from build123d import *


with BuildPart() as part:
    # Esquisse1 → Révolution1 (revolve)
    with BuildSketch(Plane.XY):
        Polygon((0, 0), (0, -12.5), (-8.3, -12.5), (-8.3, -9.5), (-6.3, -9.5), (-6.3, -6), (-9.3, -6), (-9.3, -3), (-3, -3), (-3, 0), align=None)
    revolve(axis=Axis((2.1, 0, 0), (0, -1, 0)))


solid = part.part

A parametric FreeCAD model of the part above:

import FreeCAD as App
import Part
import Sketcher
Q = App.Units.Quantity


def add_polygon(sketch, points):
    """Adds a closed chain of lines whose ends are joined by coincident constraints."""
    first, n = sketch.GeometryCount, len(points)
    for a, b in zip(points, points[1:] + points[:1]):
        sketch.addGeometry(Part.LineSegment(App.Vector(*a, 0), App.Vector(*b, 0)), False)
    for i in range(n):
        sketch.addConstraint(Sketcher.Constraint("Coincident", first + i, 2, first + (i + 1) % n, 1))

doc = App.newDocument("Part")
params = doc.addObject("Spreadsheet::Sheet", "Params")
for row, (alias, value) in enumerate([
    ("sketch1_width", "3 mm"),
    ("sketch1_width2", "2 mm"),
    ("sketch1_width3", "6.3 mm"),
    ("sketch1_height", "12.5 mm"),
    ("revolution_angle", "360 deg"),
], start=1):
    params.set(f"A{row}", alias)
    params.set(f"B{row}", "=" + value)
    params.setAlias(f"B{row}", alias)

body = doc.addObject("PartDesign::Body", "Body")

# Sketch on XY plane
sketch1 = body.newObject("Sketcher::SketchObject", "Sketch")
sketch1.AttachmentSupport = (doc.getObject("XY_Plane"), [""])
sketch1.MapMode = "FlatFace"
add_polygon(sketch1, [(0, -12.5), (0, 0), (-3, 0), (-3, -3), (-9.3, -3), (-9.3, -6), (-6.3, -6), (-6.3, -9.5), (-8.3, -9.5), (-8.3, -12.5)])  # lines 0-9
sketch1.addGeometry(Part.LineSegment(App.Vector(2.1, 0, 0), App.Vector(2.1, -12.5, 0)), True)  # axis
sketch1.addConstraint([
    Sketcher.Constraint("Vertical", 0),
    Sketcher.Constraint("Horizontal", 1),
    Sketcher.Constraint("Vertical", 2),
    Sketcher.Constraint("Horizontal", 3),
    Sketcher.Constraint("Vertical", 4),
    Sketcher.Constraint("Horizontal", 5),
    Sketcher.Constraint("Vertical", 6),
    Sketcher.Constraint("Horizontal", 7),
    Sketcher.Constraint("Vertical", 8),
    Sketcher.Constraint("Horizontal", 9),
    Sketcher.Constraint("Vertical", 10),
    Sketcher.Constraint("Coincident", 0, 2, -1, 1),
    Sketcher.Constraint("PointOnObject", 10, 1, -1),
    Sketcher.Constraint("Horizontal", 9, 2, 10, 2),
    Sketcher.Constraint("Equal", 1, 5),
    Sketcher.Constraint("Equal", 5, 2),
    Sketcher.Constraint("Equal", 2, 4),
    Sketcher.Constraint("Equal", 4, 8),
    Sketcher.Constraint("DistanceX", 1, 2, 1, 1, Q("3 mm")),
    Sketcher.Constraint("DistanceX", 7, 2, 7, 1, Q("2 mm")),
    Sketcher.Constraint("DistanceX", 3, 2, 3, 1, Q("6.3 mm")),
    Sketcher.Constraint("DistanceY", 0, 1, 0, 2, Q("12.5 mm")),
    Sketcher.Constraint("DistanceX", -1, 1, 10, 1, Q("2.1 mm")),
])
sketch1.setExpression("Constraints[28]", "Params.sketch1_width")
sketch1.setExpression("Constraints[29]", "Params.sketch1_width2")
sketch1.setExpression("Constraints[30]", "Params.sketch1_width3")
sketch1.setExpression("Constraints[31]", "Params.sketch1_height")
revolution = body.newObject("PartDesign::Revolution", "Revolution")
revolution.Profile = sketch1
revolution.ReferenceAxis = (sketch1, ["Axis0"])
revolution.setExpression("Angle", "Params.revolution_angle")

doc.recompute()
